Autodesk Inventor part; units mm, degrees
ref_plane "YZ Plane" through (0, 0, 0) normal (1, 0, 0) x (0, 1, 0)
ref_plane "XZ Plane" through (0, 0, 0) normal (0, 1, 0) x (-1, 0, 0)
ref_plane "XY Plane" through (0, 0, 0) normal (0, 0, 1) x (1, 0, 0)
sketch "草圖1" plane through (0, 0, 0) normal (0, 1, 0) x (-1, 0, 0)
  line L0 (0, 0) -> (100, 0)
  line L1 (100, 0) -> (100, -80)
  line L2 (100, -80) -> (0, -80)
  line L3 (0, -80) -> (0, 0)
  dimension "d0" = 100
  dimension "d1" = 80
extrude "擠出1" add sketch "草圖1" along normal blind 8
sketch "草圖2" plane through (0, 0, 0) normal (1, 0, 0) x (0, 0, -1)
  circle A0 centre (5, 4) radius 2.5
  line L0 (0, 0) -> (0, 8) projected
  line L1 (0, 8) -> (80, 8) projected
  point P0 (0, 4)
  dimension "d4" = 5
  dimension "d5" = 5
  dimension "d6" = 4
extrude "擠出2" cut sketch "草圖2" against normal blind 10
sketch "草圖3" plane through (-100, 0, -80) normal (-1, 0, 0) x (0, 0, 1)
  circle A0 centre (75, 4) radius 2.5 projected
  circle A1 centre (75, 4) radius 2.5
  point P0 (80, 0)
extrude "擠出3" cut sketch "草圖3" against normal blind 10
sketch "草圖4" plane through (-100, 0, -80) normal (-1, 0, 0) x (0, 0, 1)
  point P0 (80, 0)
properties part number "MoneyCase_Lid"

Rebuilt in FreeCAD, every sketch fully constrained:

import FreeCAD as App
import Part
import Sketcher
from FreeCAD import Vector
Q = App.Units.Quantity


def add_polygon(sketch, points):
    """Adds a closed chain of lines whose ends are joined by coincident constraints."""
    first, n = sketch.GeometryCount, len(points)
    for a, b in zip(points, points[1:] + points[:1]):
        sketch.addGeometry(Part.LineSegment(App.Vector(*a, 0), App.Vector(*b, 0)), False)
    for i in range(n):
        sketch.addConstraint(Sketcher.Constraint("Coincident", first + i, 2, first + (i + 1) % n, 1))

doc = App.newDocument("Part")
body = doc.addObject("PartDesign::Body", "Body")

# Sketch on XZ plane
sketch1 = body.newObject("Sketcher::SketchObject", "Sketch")
sketch1.AttachmentSupport = (doc.getObject("XZ_Plane"), [""])
sketch1.MapMode = "FlatFace"
add_polygon(sketch1, [(-100, 0), (0, 0), (0, -80), (-100, -80)])  # lines 0-3
sketch1.addConstraint([
    Sketcher.Constraint("Horizontal", 0),
    Sketcher.Constraint("Vertical", 1),
    Sketcher.Constraint("Horizontal", 2),
    Sketcher.Constraint("Vertical", 3),
    Sketcher.Constraint("Coincident", 0, 2, -1, 1),
    Sketcher.Constraint("DistanceX", 0, 1, 0, 2, Q("100 mm")),
    Sketcher.Constraint("DistanceY", 1, 2, 1, 1, Q("80 mm")),
])
pad1 = body.newObject("PartDesign::Pad", "Pad")
pad1.Profile = sketch1
pad1.Length = 8
pad1.Reversed = True

# Sketch on YZ plane
sketch2 = body.newObject("Sketcher::SketchObject", "Sketch001")
sketch2.AttachmentSupport = (doc.getObject("YZ_Plane"), [""])
sketch2.MapMode = "FlatFace"
sketch2.addGeometry(Part.Circle(Vector(4, -5, 0), Vector(0, 0, 1), 2.5), False)
sketch2.addConstraint([
    Sketcher.Constraint("Diameter", 0, Q("5 mm")),
    Sketcher.Constraint("DistanceX", -1, 1, 0, 3, Q("4 mm")),
    Sketcher.Constraint("DistanceY", 0, 3, -1, 1, Q("5 mm")),
])
pocket1 = body.newObject("PartDesign::Pocket", "Pocket")
pocket1.Profile = sketch2
pocket1.Length = 10

# Sketch on YZ plane
sketch3 = body.newObject("Sketcher::SketchObject", "Sketch002")
sketch3.AttachmentSupport = (doc.getObject("YZ_Plane"), [""])
sketch3.MapMode = "FlatFace"
sketch3.AttachmentOffset = App.Placement(Vector(0, 0, -100), App.Rotation())
sketch3.addGeometry(Part.Circle(Vector(4, -5, 0), Vector(0, 0, 1), 2.5), False)
sketch3.addConstraint([
    Sketcher.Constraint("Diameter", 0, Q("5 mm")),
    Sketcher.Constraint("DistanceX", -1, 1, 0, 3, Q("4 mm")),
    Sketcher.Constraint("DistanceY", 0, 3, -1, 1, Q("5 mm")),
])
pocket2 = body.newObject("PartDesign::Pocket", "Pocket001")
pocket2.Profile = sketch3
pocket2.Length = 10
pocket2.Reversed = True

doc.recompute()
